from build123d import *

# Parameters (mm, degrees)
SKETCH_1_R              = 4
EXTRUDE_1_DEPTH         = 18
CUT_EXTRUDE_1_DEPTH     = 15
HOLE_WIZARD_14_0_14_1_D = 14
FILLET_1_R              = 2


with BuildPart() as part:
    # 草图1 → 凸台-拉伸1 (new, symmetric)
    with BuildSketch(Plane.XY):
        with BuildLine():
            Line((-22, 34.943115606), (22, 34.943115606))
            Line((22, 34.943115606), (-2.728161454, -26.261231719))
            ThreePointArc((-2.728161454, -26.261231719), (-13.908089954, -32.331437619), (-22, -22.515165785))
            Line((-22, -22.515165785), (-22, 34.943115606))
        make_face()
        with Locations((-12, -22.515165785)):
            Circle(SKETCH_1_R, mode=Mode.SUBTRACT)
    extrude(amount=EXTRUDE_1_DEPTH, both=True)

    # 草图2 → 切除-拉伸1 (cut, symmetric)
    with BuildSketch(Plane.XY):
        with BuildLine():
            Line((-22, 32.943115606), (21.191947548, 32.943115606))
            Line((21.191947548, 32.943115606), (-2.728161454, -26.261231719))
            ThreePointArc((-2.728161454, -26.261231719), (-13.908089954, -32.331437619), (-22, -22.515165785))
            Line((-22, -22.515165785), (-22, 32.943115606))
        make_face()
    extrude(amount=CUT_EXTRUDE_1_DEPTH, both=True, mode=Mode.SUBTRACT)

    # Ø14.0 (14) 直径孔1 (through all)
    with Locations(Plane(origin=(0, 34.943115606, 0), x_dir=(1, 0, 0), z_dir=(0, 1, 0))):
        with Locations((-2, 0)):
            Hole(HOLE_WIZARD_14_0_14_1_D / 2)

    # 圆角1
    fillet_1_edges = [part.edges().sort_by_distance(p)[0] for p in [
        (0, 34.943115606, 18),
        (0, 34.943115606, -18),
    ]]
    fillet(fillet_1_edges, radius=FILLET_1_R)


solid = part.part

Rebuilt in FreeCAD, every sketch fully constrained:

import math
import FreeCAD as App
import Part
import Sketcher

V = App.Vector
Q = App.Units.Quantity


def edges_at(feature, points):
    """Names of the edges that pass closest to the given points."""
    edges = feature.Shape.Edges
    near = lambda p: min(range(len(edges)), key=lambda i: edges[i].distToShape(Part.Vertex(*p))[0])
    return sorted({f"Edge{near(p) + 1}" for p in points})

doc = App.newDocument("Part")
body = doc.addObject("PartDesign::Body", "Body")

# Sketch on XY plane
sketch1 = body.newObject("Sketcher::SketchObject", "Sketch")
sketch1.AttachmentSupport = (doc.getObject("XY_Plane"), [""])
sketch1.MapMode = "FlatFace"
sketch1.addGeometry([
    Part.LineSegment(V(22, 34.9, 0), V(-22, 34.9, 0)),  # 0
    Part.LineSegment(V(-22, 34.9, 0), V(-22, -22.5, 0)),  # 1
    Part.ArcOfCircle(Part.Circle(V(-12, -22.5, 0), V(0, 0, 1), 10), math.radians(-180), math.radians(-22)),  # 2
    Part.LineSegment(V(-2.7, -26.3, 0), V(22, 34.9, 0)),  # 3
    Part.Circle(V(-12, -22.5, 0), V(0, 0, 1), 4),  # 4
], False)
sketch1.addConstraint([
    Sketcher.Constraint("Coincident", 0, 2, 1, 1),
    Sketcher.Constraint("Tangent", 1, 2, 2, 1),
    Sketcher.Constraint("Tangent", 2, 2, 3, 1),
    Sketcher.Constraint("Coincident", 3, 2, 0, 1),
    Sketcher.Constraint("Horizontal", 0),
    Sketcher.Constraint("Vertical", 1),
    Sketcher.Constraint("Coincident", 4, 3, 2, 3),
    Sketcher.Constraint("Diameter", 4, 8.0),
    Sketcher.Constraint("Radius", 2, 10.0),
    Sketcher.Constraint("DistanceX", 0, 2, 0, 1, 44.0),
    Sketcher.Constraint("Angle", 3, Q("68 deg")),
    Sketcher.Constraint("DistanceX", 2, 3, -1, 1, 12.0),
    Sketcher.Constraint("DistanceY", 2, 2, -1, 1, 26.261232),
])
pad1 = body.newObject("PartDesign::Pad", "Pad")
pad1.Profile = sketch1
pad1.Length = 36
pad1.Midplane = True

# Sketch on XY plane
sketch2 = body.newObject("Sketcher::SketchObject", "Sketch001")
sketch2.AttachmentSupport = (doc.getObject("XY_Plane"), [""])
sketch2.MapMode = "FlatFace"
sketch2.addGeometry([
    Part.LineSegment(V(21, 33, 0), V(-22, 33, 0)),
    Part.LineSegment(V(-22, 33, 0), V(-22, -23, 0)),
    Part.ArcOfCircle(Part.Circle(V(-12, -23, 0), V(0, 0, 1), 10), math.radians(-180), math.radians(-22)),
    Part.LineSegment(V(-3, -26, 0), V(21, 33, 0)),
], False)
sketch2.addConstraint([
    Sketcher.Constraint("Coincident", 0, 2, 1, 1),
    Sketcher.Constraint("Tangent", 1, 2, 2, 1),
    Sketcher.Constraint("Tangent", 2, 2, 3, 1),
    Sketcher.Constraint("Coincident", 3, 2, 0, 1),
    Sketcher.Constraint("Horizontal", 0),
    Sketcher.Constraint("Vertical", 1),
    Sketcher.Constraint("Radius", 2, 10.0),
    Sketcher.Constraint("Angle", 3, Q("68 deg")),
    Sketcher.Constraint("DistanceX", 2, 3, -1, 1, 12.0),
    Sketcher.Constraint("DistanceY", 1, 2, 1, 1, 55.458281),
    Sketcher.Constraint("DistanceY", 2, 2, -1, 1, 26.261232),
])
pocket1 = body.newObject("PartDesign::Pocket", "Pocket")
pocket1.Profile = sketch2
pocket1.Length = 30
pocket1.Midplane = True

# Sketch on XZ plane
sketch3 = body.newObject("Sketcher::SketchObject", "Sketch002")
sketch3.AttachmentSupport = (doc.getObject("XZ_Plane"), [""])
sketch3.MapMode = "FlatFace"
sketch3.AttachmentOffset = App.Placement(V(0, 0, -34.943116), App.Rotation())
sketch3.addGeometry(Part.Circle(V(-2, 0, 0), V(0, 0, 1), 7), False)
sketch3.addConstraint([
    Sketcher.Constraint("PointOnObject", 0, 3, -1),
    Sketcher.Constraint("Diameter", 0, 14.0),
    Sketcher.Constraint("DistanceX", 0, 3, -1, 1, 2.0),
])
doc.recompute()
hole = body.newObject("PartDesign::Hole", "Hole")
hole.Profile = sketch3
hole.ThreadType = "None"
hole.Diameter = 14
hole.DepthType = "ThroughAll"
hole.Reversed = True
doc.recompute()

fillet = body.newObject("PartDesign::Fillet", "Fillet")
fillet.Base = (hole, edges_at(hole, [(0, 34.943, 18), (0, 34.943, -18)]))
fillet.Radius = 2

doc.recompute()
